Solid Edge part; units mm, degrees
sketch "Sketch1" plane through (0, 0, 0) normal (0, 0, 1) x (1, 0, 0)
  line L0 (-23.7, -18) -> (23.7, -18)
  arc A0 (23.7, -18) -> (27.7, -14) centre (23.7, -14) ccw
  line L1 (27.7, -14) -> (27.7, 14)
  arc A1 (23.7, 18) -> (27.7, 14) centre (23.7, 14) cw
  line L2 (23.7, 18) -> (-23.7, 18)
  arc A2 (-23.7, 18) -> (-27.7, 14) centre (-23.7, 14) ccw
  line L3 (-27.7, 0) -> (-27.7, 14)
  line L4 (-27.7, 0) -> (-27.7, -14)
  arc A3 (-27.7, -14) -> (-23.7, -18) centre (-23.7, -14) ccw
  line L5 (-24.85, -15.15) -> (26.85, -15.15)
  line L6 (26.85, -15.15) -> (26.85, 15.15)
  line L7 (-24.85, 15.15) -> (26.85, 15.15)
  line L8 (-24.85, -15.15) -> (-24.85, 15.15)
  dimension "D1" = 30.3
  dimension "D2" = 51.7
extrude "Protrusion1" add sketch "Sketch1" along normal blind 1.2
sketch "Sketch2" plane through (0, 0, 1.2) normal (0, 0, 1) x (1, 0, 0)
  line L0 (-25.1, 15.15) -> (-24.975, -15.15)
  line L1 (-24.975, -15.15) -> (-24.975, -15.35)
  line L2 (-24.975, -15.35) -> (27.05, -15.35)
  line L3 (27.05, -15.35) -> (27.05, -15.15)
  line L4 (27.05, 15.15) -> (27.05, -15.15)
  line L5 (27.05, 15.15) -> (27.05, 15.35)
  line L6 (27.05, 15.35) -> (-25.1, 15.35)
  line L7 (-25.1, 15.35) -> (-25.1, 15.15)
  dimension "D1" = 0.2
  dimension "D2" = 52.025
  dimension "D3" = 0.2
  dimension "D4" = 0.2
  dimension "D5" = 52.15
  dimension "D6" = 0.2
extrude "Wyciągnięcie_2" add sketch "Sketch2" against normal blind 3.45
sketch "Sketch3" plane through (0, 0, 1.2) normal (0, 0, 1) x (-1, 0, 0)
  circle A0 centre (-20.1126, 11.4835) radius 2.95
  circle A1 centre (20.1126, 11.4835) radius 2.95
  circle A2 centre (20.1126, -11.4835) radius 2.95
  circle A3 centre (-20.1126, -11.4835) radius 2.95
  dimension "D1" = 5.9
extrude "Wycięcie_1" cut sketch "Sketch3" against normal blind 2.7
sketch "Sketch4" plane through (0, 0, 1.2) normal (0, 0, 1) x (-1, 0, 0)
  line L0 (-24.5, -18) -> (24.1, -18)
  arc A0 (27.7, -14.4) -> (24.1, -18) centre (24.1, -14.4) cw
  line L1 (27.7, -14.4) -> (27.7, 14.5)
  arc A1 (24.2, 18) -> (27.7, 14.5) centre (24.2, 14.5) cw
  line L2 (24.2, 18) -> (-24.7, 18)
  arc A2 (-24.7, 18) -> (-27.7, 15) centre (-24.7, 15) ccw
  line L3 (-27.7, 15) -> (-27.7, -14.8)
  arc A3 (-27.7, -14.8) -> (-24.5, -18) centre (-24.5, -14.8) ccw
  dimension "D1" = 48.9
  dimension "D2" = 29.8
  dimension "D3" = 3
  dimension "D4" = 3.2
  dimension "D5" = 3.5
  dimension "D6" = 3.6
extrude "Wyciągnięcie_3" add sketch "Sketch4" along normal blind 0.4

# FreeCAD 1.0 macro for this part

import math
import FreeCAD as App
import Part
import Sketcher
from FreeCAD import Vector
Q = App.Units.Quantity

doc = App.newDocument("Part")
body = doc.addObject("PartDesign::Body", "Body")

# Sketch on XY plane
sketch1 = body.newObject("Sketcher::SketchObject", "Sketch")
sketch1.AttachmentSupport = (doc.getObject("XY_Plane"), [""])
sketch1.MapMode = "FlatFace"
sketch1.addGeometry([
    Part.ArcOfCircle(Part.Circle(Vector(-23.7, -14, 0), Vector(0, 0, 1), 4), math.radians(180), math.radians(270)),  # 0
    Part.LineSegment(Vector(-23.7, -18, 0), Vector(23.7, -18, 0)),  # 1
    Part.ArcOfCircle(Part.Circle(Vector(23.7, -14, 0), Vector(0, 0, 1), 4), math.radians(-90), math.radians(0)),  # 2
    Part.LineSegment(Vector(27.7, -14, 0), Vector(27.7, 14, 0)),  # 3
    Part.ArcOfCircle(Part.Circle(Vector(23.7, 14, 0), Vector(0, 0, 1), 4), math.radians(0), math.radians(90)),  # 4
    Part.LineSegment(Vector(23.7, 18, 0), Vector(-23.7, 18, 0)),  # 5
    Part.ArcOfCircle(Part.Circle(Vector(-23.7, 14, 0), Vector(0, 0, 1), 4), math.radians(90), math.radians(180)),  # 6
    Part.LineSegment(Vector(-27.7, 14, 0), Vector(-27.7, -14, 0)),  # 7
    Part.LineSegment(Vector(26.9, -15.2, 0), Vector(-24.9, -15.2, 0)),  # 8
    Part.LineSegment(Vector(-24.9, -15.2, 0), Vector(-24.9, 15.2, 0)),  # 9
    Part.LineSegment(Vector(-24.9, 15.2, 0), Vector(26.9, 15.2, 0)),  # 10
    Part.LineSegment(Vector(26.9, 15.2, 0), Vector(26.9, -15.2, 0)),  # 11
], False)
sketch1.addConstraint([
    Sketcher.Constraint("Tangent", 0, 2, 1, 1),
    Sketcher.Constraint("Tangent", 1, 2, 2, 1),
    Sketcher.Constraint("Tangent", 2, 2, 3, 1),
    Sketcher.Constraint("Tangent", 3, 2, 4, 1),
    Sketcher.Constraint("Tangent", 4, 2, 5, 1),
    Sketcher.Constraint("Tangent", 5, 2, 6, 1),
    Sketcher.Constraint("Tangent", 6, 2, 7, 1),
    Sketcher.Constraint("Tangent", 7, 2, 0, 1),
    Sketcher.Constraint("Coincident", 8, 2, 9, 1),
    Sketcher.Constraint("Coincident", 9, 2, 10, 1),
    Sketcher.Constraint("Coincident", 10, 2, 11, 1),
    Sketcher.Constraint("Coincident", 11, 2, 8, 1),
    Sketcher.Constraint("Horizontal", 1),
    Sketcher.Constraint("Vertical", 3),
    Sketcher.Constraint("Horizontal", 5),
    Sketcher.Constraint("Vertical", 7),
    Sketcher.Constraint("Horizontal", 8),
    Sketcher.Constraint("Vertical", 9),
    Sketcher.Constraint("Horizontal", 10),
    Sketcher.Constraint("Vertical", 11),
    Sketcher.Constraint("Equal", 0, 2),
    Sketcher.Constraint("Equal", 2, 4),
    Sketcher.Constraint("Equal", 4, 6),
    Sketcher.Constraint("Symmetric", 0, 3, 4, 3, -1, 1),
    Sketcher.Constraint("Radius", 0, Q("4 mm")),
    Sketcher.Constraint("DistanceY", 3, 1, 3, 2, Q("28 mm")),
    Sketcher.Constraint("DistanceX", 1, 1, 1, 2, Q("47.4 mm")),
    Sketcher.Constraint("DistanceX", 8, 2, 8, 1, Q("51.7 mm")),
    Sketcher.Constraint("DistanceY", 9, 1, 9, 2, Q("30.3 mm")),
    Sketcher.Constraint("DistanceX", 8, 2, -1, 1, Q("24.85 mm")),
    Sketcher.Constraint("DistanceY", 8, 2, -1, 1, Q("15.15 mm")),
])
pad1 = body.newObject("PartDesign::Pad", "Pad")
pad1.Profile = sketch1
pad1.Length = 1.2

# Sketch on XY plane
sketch2 = body.newObject("Sketcher::SketchObject", "Sketch001")
sketch2.AttachmentSupport = (doc.getObject("XY_Plane"), [""])
sketch2.MapMode = "FlatFace"
sketch2.AttachmentOffset = App.Placement(Vector(0, 0, 1.2), App.Rotation())
sketch2.addGeometry([
    Part.LineSegment(Vector(-25.1, 15.35, 0), Vector(-25.1, 15.15, 0)),  # 0
    Part.LineSegment(Vector(-25.1, 15.15, 0), Vector(-24.98, -15.15, 0)),  # 1
    Part.LineSegment(Vector(-24.98, -15.15, 0), Vector(-24.98, -15.35, 0)),  # 2
    Part.LineSegment(Vector(-24.98, -15.35, 0), Vector(27.05, -15.35, 0)),  # 3
    Part.LineSegment(Vector(27.05, -15.35, 0), Vector(27.05, 15.35, 0)),  # 4
    Part.LineSegment(Vector(27.05, 15.35, 0), Vector(-25.1, 15.35, 0)),  # 5
], False)
sketch2.addConstraint([
    Sketcher.Constraint("Coincident", 0, 2, 1, 1),
    Sketcher.Constraint("Coincident", 1, 2, 2, 1),
    Sketcher.Constraint("Coincident", 2, 2, 3, 1),
    Sketcher.Constraint("Coincident", 3, 2, 4, 1),
    Sketcher.Constraint("Coincident", 4, 2, 5, 1),
    Sketcher.Constraint("Coincident", 5, 2, 0, 1),
    Sketcher.Constraint("Vertical", 0),
    Sketcher.Constraint("Vertical", 2),
    Sketcher.Constraint("Horizontal", 3),
    Sketcher.Constraint("Vertical", 4),
    Sketcher.Constraint("Horizontal", 5),
    Sketcher.Constraint("Equal", 0, 2),
    Sketcher.Constraint("DistanceY", 0, 2, 0, 1, Q("0.2 mm")),
    Sketcher.Constraint("DistanceY", 4, 1, 4, 2, Q("30.7 mm")),
    Sketcher.Constraint("DistanceX", 5, 2, 5, 1, Q("52.15 mm")),
    Sketcher.Constraint("DistanceX", 0, 2, -1, 1, Q("25.1 mm")),
    Sketcher.Constraint("DistanceX", 3, 1, 3, 2, Q("52.025 mm")),
    Sketcher.Constraint("DistanceY", -1, 1, 0, 2, Q("15.15 mm")),
])
pad2 = body.newObject("PartDesign::Pad", "Pad001")
pad2.Profile = sketch2
pad2.Length = 3.45
pad2.Reversed = True

# Sketch on XY plane
sketch3 = body.newObject("Sketcher::SketchObject", "Sketch002")
sketch3.AttachmentSupport = (doc.getObject("XY_Plane"), [""])
sketch3.MapMode = "FlatFace"
sketch3.AttachmentOffset = App.Placement(Vector(0, 0, 1.2), App.Rotation())
sketch3.addGeometry([
    Part.Circle(Vector(20.1, -11.5, 0), Vector(0, 0, 1), 3),
    Part.Circle(Vector(-20.1, -11.5, 0), Vector(0, 0, 1), 3),
    Part.Circle(Vector(-20.1, 11.5, 0), Vector(0, 0, 1), 3),
    Part.Circle(Vector(20.1, 11.5, 0), Vector(0, 0, 1), 3),
], False)
sketch3.addConstraint([
    Sketcher.Constraint("Equal", 0, 1),
    Sketcher.Constraint("Equal", 1, 2),
    Sketcher.Constraint("Equal", 2, 3),
    Sketcher.Constraint("Symmetric", 0, 3, 2, 3, -1, 1),
    Sketcher.Constraint("Symmetric", 1, 3, 3, 3, -1, 1),
    Sketcher.Constraint("Symmetric", 0, 3, 1, 3, -2),
    Sketcher.Constraint("Diameter", 0, Q("5.9 mm")),
    Sketcher.Constraint("DistanceY", 1, 3, 2, 3, Q("22.967 mm")),
    Sketcher.Constraint("DistanceX", -1, 1, 0, 3, Q("20.1126 mm")),
])
pocket1 = body.newObject("PartDesign::Pocket", "Pocket")
pocket1.Profile = sketch3
pocket1.Length = 2.7

# Sketch on XY plane
sketch4 = body.newObject("Sketcher::SketchObject", "Sketch003")
sketch4.AttachmentSupport = (doc.getObject("XY_Plane"), [""])
sketch4.MapMode = "FlatFace"
sketch4.AttachmentOffset = App.Placement(Vector(0, 0, 1.2), App.Rotation())
sketch4.addGeometry([
    Part.ArcOfCircle(Part.Circle(Vector(24.5, 14.8, 0), Vector(0, 0, 1), 3.2), math.radians(0), math.radians(90)),  # 0
    Part.LineSegment(Vector(24.5, 18, 0), Vector(-24.1, 18, 0)),  # 1
    Part.ArcOfCircle(Part.Circle(Vector(-24.1, 14.4, 0), Vector(0, 0, 1), 3.6), math.radians(90), math.radians(180)),  # 2
    Part.LineSegment(Vector(-27.7, 14.4, 0), Vector(-27.7, -14.5, 0)),  # 3
    Part.ArcOfCircle(Part.Circle(Vector(-24.2, -14.5, 0), Vector(0, 0, 1), 3.5), math.radians(180), math.radians(270)),  # 4
    Part.LineSegment(Vector(-24.2, -18, 0), Vector(24.7, -18, 0)),  # 5
    Part.ArcOfCircle(Part.Circle(Vector(24.7, -15, 0), Vector(0, 0, 1), 3), math.radians(-90), math.radians(0)),  # 6
    Part.LineSegment(Vector(27.7, -15, 0), Vector(27.7, 14.8, 0)),  # 7
], False)
sketch4.addConstraint([
    Sketcher.Constraint("Tangent", 0, 2, 1, 1),
    Sketcher.Constraint("Tangent", 1, 2, 2, 1),
    Sketcher.Constraint("Tangent", 2, 2, 3, 1),
    Sketcher.Constraint("Tangent", 3, 2, 4, 1),
    Sketcher.Constraint("Tangent", 4, 2, 5, 1),
    Sketcher.Constraint("Tangent", 5, 2, 6, 1),
    Sketcher.Constraint("Tangent", 6, 2, 7, 1),
    Sketcher.Constraint("Tangent", 7, 2, 0, 1),
    Sketcher.Constraint("Horizontal", 1),
    Sketcher.Constraint("Vertical", 3),
    Sketcher.Constraint("Horizontal", 5),
    Sketcher.Constraint("Vertical", 7),
    Sketcher.Constraint("Radius", 6, Q("3 mm")),
    Sketcher.Constraint("Radius", 0, Q("3.2 mm")),
    Sketcher.Constraint("Radius", 2, Q("3.6 mm")),
    Sketcher.Constraint("Radius", 4, Q("3.5 mm")),
    Sketcher.Constraint("DistanceX", 1, 2, 1, 1, Q("48.6 mm")),
    Sketcher.Constraint("DistanceY", 3, 2, 3, 1, Q("28.9 mm")),
    Sketcher.Constraint("DistanceY", 6, 3, -1, 1, Q("15 mm")),
    Sketcher.Constraint("DistanceX", -1, 1, 0, 3, Q("24.5 mm")),
])
pad3 = body.newObject("PartDesign::Pad", "Pad002")
pad3.Profile = sketch4
pad3.Length = 0.4

doc.recompute()
